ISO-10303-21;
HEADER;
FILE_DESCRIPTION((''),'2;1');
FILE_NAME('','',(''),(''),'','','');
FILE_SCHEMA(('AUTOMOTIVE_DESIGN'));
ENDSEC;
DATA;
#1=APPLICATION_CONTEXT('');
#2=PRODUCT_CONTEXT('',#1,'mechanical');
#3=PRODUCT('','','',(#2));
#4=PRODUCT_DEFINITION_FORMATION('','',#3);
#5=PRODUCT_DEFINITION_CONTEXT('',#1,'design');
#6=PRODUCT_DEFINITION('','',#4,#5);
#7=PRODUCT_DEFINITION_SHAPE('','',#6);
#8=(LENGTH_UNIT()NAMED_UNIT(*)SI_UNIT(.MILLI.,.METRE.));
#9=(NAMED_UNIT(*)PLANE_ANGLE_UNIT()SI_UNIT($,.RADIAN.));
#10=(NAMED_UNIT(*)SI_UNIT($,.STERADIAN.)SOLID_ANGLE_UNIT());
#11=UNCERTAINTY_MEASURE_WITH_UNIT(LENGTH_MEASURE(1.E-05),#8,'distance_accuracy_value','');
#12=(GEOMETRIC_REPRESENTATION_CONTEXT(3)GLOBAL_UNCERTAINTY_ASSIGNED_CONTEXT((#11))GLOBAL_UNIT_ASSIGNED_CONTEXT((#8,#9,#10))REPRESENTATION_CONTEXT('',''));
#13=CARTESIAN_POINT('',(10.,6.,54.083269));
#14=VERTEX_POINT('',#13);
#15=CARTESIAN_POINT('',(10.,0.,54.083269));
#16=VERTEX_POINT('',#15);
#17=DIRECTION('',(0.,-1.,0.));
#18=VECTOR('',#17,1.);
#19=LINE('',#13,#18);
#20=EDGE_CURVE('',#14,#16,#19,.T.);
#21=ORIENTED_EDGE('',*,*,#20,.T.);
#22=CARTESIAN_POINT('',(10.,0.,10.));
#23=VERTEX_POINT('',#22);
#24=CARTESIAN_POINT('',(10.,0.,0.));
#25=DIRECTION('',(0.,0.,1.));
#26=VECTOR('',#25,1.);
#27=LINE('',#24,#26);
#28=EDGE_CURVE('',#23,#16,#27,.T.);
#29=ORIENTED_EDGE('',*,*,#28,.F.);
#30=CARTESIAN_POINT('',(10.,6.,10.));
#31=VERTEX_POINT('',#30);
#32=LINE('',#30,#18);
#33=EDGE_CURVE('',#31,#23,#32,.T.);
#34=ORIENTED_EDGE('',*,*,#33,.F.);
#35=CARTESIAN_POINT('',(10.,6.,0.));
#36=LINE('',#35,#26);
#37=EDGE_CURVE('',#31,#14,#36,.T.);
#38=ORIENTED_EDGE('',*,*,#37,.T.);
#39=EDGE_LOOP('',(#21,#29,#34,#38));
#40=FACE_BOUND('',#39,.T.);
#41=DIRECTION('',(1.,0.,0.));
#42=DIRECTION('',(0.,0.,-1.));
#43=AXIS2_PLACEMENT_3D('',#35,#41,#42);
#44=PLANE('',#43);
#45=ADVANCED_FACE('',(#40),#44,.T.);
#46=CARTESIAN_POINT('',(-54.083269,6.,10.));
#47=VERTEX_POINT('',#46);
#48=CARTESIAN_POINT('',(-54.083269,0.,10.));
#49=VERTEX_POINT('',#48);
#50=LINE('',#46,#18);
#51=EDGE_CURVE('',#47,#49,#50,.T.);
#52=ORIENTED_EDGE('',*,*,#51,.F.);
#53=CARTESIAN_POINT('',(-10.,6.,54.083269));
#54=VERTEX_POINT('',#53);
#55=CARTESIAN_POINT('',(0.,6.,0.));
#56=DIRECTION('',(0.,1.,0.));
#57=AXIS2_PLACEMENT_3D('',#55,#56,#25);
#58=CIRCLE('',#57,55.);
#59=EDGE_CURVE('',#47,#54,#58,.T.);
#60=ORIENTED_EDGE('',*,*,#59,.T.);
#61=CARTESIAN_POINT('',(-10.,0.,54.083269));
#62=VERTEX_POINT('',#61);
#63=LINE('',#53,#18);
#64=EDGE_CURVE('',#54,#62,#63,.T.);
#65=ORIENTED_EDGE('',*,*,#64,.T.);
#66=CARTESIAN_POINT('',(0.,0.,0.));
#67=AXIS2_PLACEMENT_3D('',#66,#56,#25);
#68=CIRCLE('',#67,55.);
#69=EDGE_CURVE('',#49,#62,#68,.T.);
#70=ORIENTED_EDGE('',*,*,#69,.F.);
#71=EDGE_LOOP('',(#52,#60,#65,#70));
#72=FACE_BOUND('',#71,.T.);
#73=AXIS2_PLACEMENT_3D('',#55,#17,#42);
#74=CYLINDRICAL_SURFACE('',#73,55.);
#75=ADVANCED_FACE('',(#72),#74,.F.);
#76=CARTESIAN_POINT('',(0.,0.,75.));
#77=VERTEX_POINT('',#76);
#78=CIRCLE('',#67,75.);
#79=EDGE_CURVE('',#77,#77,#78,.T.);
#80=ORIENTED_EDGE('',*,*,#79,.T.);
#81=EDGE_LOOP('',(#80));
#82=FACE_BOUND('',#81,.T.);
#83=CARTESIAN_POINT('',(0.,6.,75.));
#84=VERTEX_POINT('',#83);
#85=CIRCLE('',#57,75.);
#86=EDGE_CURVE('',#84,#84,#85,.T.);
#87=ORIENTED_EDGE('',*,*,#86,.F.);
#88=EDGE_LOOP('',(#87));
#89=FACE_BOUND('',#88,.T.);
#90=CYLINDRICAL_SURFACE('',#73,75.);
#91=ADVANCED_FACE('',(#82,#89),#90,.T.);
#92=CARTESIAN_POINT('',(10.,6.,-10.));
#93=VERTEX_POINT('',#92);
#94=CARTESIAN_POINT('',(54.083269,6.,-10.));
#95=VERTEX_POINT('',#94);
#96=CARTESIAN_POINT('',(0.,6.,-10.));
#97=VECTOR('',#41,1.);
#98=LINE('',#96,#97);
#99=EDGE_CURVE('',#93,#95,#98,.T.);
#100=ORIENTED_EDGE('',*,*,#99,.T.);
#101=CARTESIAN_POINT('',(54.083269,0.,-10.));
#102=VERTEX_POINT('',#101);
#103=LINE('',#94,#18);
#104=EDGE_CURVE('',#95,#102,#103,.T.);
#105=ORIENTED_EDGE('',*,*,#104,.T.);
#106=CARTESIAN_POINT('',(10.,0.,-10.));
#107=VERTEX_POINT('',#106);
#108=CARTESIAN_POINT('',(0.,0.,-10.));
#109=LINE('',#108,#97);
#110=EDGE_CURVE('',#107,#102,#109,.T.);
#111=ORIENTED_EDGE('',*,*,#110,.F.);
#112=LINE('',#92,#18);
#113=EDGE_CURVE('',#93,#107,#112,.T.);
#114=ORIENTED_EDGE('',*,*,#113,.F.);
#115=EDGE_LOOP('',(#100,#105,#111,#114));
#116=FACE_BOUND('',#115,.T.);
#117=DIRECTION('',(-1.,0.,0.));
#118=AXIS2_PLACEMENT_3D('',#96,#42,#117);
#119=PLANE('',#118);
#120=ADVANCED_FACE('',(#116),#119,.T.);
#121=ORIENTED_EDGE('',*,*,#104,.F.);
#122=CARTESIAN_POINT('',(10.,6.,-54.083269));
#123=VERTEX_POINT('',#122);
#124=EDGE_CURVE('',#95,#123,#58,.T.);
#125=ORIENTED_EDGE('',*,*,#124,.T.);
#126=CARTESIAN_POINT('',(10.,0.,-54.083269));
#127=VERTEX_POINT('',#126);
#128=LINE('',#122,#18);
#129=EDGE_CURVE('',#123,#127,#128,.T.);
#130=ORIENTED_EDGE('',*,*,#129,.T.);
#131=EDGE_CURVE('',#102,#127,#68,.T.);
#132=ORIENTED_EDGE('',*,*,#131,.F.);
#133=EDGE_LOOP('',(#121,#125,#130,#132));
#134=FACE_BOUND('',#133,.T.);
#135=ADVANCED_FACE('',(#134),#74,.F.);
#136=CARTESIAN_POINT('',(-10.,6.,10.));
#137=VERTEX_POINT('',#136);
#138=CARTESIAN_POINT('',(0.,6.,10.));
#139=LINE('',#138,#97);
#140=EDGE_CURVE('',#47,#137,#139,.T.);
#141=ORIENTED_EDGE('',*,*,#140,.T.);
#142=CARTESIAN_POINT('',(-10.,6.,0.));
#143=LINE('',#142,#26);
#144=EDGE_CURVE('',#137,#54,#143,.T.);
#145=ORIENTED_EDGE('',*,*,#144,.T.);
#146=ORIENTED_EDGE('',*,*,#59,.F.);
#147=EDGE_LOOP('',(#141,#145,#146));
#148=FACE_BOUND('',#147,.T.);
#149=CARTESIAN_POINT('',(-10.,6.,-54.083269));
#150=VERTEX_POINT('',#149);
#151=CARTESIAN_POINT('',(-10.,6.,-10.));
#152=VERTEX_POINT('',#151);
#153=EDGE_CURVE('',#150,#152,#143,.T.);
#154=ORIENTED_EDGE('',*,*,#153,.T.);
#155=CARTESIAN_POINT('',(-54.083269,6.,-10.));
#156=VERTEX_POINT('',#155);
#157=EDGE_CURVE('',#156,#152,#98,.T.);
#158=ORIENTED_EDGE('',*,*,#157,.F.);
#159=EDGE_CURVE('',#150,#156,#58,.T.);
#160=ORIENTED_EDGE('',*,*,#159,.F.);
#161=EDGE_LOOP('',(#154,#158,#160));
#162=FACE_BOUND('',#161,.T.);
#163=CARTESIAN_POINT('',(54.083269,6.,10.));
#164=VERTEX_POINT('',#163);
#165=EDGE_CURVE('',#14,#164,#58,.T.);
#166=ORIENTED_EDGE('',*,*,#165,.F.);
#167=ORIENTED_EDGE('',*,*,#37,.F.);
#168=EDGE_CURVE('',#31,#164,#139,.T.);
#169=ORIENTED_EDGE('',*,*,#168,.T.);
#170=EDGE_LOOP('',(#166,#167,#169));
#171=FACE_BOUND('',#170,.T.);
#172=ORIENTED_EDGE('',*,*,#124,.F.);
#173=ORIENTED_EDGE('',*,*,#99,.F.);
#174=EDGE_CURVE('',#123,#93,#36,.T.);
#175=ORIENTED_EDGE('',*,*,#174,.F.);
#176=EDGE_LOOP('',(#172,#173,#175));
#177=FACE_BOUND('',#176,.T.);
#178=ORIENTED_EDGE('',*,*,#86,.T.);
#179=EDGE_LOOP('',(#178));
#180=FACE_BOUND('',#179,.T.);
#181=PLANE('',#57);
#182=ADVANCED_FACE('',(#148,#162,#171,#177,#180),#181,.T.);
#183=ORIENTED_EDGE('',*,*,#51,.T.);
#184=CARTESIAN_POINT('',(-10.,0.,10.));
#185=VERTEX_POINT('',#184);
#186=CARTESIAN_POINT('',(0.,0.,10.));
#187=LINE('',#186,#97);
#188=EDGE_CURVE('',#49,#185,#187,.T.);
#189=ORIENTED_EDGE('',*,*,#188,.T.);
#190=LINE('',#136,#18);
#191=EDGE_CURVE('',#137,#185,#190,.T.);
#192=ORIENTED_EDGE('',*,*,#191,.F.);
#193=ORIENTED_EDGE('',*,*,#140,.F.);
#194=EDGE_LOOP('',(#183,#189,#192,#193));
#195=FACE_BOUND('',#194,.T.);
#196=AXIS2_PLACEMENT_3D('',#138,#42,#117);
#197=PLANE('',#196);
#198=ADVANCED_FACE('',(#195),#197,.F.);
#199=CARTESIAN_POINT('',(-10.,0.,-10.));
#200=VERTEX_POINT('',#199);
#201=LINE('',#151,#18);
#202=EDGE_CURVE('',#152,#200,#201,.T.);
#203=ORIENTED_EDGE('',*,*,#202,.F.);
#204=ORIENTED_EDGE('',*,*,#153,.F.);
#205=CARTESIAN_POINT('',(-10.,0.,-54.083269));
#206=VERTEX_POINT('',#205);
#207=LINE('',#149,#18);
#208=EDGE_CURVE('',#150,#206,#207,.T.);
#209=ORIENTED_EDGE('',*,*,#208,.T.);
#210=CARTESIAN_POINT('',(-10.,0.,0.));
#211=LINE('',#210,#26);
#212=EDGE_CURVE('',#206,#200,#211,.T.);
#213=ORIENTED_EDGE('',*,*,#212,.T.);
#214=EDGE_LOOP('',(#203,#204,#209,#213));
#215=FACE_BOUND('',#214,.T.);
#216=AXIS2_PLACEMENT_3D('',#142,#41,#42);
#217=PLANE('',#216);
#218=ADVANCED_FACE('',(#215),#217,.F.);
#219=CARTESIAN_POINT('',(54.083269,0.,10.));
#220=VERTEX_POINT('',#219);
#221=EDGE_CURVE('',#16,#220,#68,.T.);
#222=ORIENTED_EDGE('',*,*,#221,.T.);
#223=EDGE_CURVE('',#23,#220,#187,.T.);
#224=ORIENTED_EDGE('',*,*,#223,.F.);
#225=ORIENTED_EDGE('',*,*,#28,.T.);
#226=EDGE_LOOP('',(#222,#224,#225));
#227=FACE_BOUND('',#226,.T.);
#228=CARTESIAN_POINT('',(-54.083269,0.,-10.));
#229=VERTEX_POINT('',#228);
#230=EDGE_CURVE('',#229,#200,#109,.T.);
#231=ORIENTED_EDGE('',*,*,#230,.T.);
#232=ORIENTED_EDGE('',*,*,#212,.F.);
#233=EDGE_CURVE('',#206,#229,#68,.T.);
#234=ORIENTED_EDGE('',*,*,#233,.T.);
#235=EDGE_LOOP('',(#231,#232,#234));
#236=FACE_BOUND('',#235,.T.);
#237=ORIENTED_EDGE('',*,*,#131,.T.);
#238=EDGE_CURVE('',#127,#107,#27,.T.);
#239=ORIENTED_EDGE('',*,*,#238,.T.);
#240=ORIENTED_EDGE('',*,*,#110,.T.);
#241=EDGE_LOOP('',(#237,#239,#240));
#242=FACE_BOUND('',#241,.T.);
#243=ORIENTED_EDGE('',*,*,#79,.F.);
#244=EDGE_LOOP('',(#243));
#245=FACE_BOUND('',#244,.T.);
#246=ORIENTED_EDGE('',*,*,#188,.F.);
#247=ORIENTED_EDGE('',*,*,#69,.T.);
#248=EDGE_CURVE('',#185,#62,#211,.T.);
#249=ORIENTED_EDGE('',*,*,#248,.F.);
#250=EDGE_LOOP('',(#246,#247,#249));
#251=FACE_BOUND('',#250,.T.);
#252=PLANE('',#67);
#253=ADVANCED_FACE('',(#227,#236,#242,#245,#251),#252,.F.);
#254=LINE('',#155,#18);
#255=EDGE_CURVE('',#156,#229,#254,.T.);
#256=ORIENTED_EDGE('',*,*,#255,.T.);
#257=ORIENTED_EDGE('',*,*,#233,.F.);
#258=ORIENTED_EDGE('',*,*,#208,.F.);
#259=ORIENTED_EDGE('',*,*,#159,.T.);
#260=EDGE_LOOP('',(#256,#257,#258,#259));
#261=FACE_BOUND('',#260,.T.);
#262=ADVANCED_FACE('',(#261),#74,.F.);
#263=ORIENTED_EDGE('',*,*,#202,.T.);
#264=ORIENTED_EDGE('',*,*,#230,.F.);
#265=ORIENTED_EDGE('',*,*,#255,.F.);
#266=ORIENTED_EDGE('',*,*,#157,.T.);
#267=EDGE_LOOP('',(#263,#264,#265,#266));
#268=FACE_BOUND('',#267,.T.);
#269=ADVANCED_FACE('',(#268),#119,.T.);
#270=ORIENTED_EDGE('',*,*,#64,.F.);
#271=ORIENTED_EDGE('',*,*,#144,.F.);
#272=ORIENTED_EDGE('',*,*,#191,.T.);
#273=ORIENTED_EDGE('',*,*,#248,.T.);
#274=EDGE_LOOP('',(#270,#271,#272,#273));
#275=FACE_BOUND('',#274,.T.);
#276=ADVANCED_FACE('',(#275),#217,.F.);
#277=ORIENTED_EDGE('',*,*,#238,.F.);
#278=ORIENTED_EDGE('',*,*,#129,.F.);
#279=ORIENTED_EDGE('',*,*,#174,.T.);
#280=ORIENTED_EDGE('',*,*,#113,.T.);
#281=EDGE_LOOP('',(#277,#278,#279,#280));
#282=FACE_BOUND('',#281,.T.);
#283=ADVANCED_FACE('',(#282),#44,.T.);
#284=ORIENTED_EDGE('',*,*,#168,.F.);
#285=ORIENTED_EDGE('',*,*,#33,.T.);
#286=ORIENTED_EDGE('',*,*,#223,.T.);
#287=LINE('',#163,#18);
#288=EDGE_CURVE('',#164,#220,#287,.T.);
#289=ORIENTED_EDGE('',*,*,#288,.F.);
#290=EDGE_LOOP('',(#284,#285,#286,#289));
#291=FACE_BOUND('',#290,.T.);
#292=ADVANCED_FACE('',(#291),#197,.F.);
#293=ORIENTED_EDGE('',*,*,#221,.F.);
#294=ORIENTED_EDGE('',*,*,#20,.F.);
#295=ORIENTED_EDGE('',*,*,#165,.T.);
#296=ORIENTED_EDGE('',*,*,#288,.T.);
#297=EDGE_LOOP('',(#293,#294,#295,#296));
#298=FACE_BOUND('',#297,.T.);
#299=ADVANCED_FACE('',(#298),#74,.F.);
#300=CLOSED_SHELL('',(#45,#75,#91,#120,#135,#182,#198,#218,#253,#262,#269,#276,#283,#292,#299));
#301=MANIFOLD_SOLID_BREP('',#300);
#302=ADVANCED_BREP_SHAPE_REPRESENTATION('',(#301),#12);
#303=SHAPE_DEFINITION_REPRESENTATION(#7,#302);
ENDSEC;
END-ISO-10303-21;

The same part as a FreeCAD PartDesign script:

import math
import FreeCAD as App
import Part
import Sketcher

V = App.Vector

doc = App.newDocument("Part")
body = doc.addObject("PartDesign::Body", "Body")

sketch1 = body.newObject("Sketcher::SketchObject", "Sketch")
sketch1.AttachmentSupport = (doc.getObject("XZ_Plane"), [""])
sketch1.MapMode = "FlatFace"
sketch1.addGeometry(Part.Circle(V(0, 0, 0), V(0, 0, 1), 75), False)
sketch1.addGeometry(Part.ArcOfCircle(Part.Circle(V(0, 0, 0), V(0, 0, 1), 55), math.radians(-169.524318), math.radians(-100.475682)), False)
sketch1.addGeometry(Part.LineSegment(V(-10, -54.083269, 0), V(-10, -10, 0)), False)
sketch1.addGeometry(Part.LineSegment(V(-10, -10, 0), V(-54.083269, -10, 0)), False)
sketch1.addGeometry(Part.ArcOfCircle(Part.Circle(V(0, 0, 0), V(0, 0, 1), 55), math.radians(100.475682), math.radians(169.524318)), False)
sketch1.addGeometry(Part.LineSegment(V(-54.083269, 10, 0), V(-10, 10, 0)), False)
sketch1.addGeometry(Part.LineSegment(V(-10, 10, 0), V(-10, 54.083269, 0)), False)
sketch1.addGeometry(Part.ArcOfCircle(Part.Circle(V(0, 0, 0), V(0, 0, 1), 55), math.radians(-79.524318), math.radians(-10.475682)), False)
sketch1.addGeometry(Part.LineSegment(V(54.083269, -10, 0), V(10, -10, 0)), False)
sketch1.addGeometry(Part.LineSegment(V(10, -10, 0), V(10, -54.083269, 0)), False)
sketch1.addGeometry(Part.ArcOfCircle(Part.Circle(V(0, 0, 0), V(0, 0, 1), 55), math.radians(10.475682), math.radians(79.524318)), False)
sketch1.addGeometry(Part.LineSegment(V(10, 54.083269, 0), V(10, 10, 0)), False)
sketch1.addGeometry(Part.LineSegment(V(10, 10, 0), V(54.083269, 10, 0)), False)
sketch1.addConstraint(Sketcher.Constraint("Coincident", 1, 2, 2, 1))
sketch1.addConstraint(Sketcher.Constraint("Coincident", 2, 2, 3, 1))
sketch1.addConstraint(Sketcher.Constraint("Coincident", 3, 2, 1, 1))
sketch1.addConstraint(Sketcher.Constraint("Coincident", 4, 2, 5, 1))
sketch1.addConstraint(Sketcher.Constraint("Coincident", 5, 2, 6, 1))
sketch1.addConstraint(Sketcher.Constraint("Coincident", 6, 2, 4, 1))
sketch1.addConstraint(Sketcher.Constraint("Coincident", 7, 2, 8, 1))
sketch1.addConstraint(Sketcher.Constraint("Coincident", 8, 2, 9, 1))
sketch1.addConstraint(Sketcher.Constraint("Coincident", 9, 2, 7, 1))
sketch1.addConstraint(Sketcher.Constraint("Coincident", 10, 2, 11, 1))
sketch1.addConstraint(Sketcher.Constraint("Coincident", 11, 2, 12, 1))
sketch1.addConstraint(Sketcher.Constraint("Coincident", 12, 2, 10, 1))
sketch1.addConstraint(Sketcher.Constraint("Vertical", 2))
sketch1.addConstraint(Sketcher.Constraint("Horizontal", 3))
sketch1.addConstraint(Sketcher.Constraint("Horizontal", 5))
sketch1.addConstraint(Sketcher.Constraint("Vertical", 6))
sketch1.addConstraint(Sketcher.Constraint("Horizontal", 8))
sketch1.addConstraint(Sketcher.Constraint("Vertical", 9))
sketch1.addConstraint(Sketcher.Constraint("Vertical", 11))
sketch1.addConstraint(Sketcher.Constraint("Horizontal", 12))
sketch1.addConstraint(Sketcher.Constraint("Coincident", 0, 3, -1, 1))
sketch1.addConstraint(Sketcher.Constraint("Coincident", 1, 3, -1, 1))
sketch1.addConstraint(Sketcher.Constraint("Coincident", 4, 3, -1, 1))
sketch1.addConstraint(Sketcher.Constraint("Coincident", 7, 3, -1, 1))
sketch1.addConstraint(Sketcher.Constraint("Coincident", 10, 3, -1, 1))
sketch1.addConstraint(Sketcher.Constraint("Equal", 1, 4))
sketch1.addConstraint(Sketcher.Constraint("Equal", 4, 7))
sketch1.addConstraint(Sketcher.Constraint("Equal", 7, 10))
sketch1.addConstraint(Sketcher.Constraint("Symmetric", 5, 2, 8, 2, -1, 1))
sketch1.addConstraint(Sketcher.Constraint("Symmetric", 2, 2, 11, 2, -1, 1))
sketch1.addConstraint(Sketcher.Constraint("Symmetric", 2, 2, 8, 2, -2))
sketch1.addConstraint(Sketcher.Constraint("Equal", 12, 2))
sketch1.addConstraint(Sketcher.Constraint("Diameter", 0, 150.0))
sketch1.addConstraint(Sketcher.Constraint("Radius", 1, 55.0))
sketch1.addConstraint(Sketcher.Constraint("DistanceX", 1, 2, -1, 1, 10.0))
pad1 = body.newObject("PartDesign::Pad", "Pad")
pad1.Profile = sketch1
pad1.Length = 6
pad1.Reversed = True

doc.recompute()
